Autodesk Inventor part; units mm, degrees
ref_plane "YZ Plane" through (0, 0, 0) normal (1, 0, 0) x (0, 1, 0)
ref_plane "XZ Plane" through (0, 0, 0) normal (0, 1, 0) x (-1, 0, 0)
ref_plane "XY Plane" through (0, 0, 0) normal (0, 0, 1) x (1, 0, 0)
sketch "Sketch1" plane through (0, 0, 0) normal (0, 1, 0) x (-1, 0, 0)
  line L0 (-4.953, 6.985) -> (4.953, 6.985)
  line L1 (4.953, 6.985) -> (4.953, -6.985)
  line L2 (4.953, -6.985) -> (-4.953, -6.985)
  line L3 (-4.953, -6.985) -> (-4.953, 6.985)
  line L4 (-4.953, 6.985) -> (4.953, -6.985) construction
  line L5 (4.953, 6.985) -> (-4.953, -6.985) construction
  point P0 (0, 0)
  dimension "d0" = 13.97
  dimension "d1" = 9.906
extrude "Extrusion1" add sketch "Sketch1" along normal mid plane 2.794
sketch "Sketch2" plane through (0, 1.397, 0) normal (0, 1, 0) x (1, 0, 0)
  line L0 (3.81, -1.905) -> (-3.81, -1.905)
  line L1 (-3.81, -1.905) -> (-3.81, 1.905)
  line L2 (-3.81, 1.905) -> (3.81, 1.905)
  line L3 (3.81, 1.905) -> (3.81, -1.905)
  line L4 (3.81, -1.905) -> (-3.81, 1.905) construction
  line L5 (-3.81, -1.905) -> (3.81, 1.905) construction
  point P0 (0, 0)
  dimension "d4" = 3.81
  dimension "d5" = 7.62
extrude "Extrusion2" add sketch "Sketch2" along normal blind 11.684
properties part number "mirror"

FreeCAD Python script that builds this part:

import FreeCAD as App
import Part
import Sketcher

V = App.Vector
Q = App.Units.Quantity

doc = App.newDocument("Part")
body = doc.addObject("PartDesign::Body", "Body")

# Sketch on XZ plane
sketch1 = doc.addObject("Sketcher::SketchObject", "Sketch")
body.addObject(sketch1)
sketch1.AttachmentSupport = (doc.XZ_Plane, [""])
sketch1.MapMode = "FlatFace"
sketch1.addGeometry(Part.LineSegment(V(-5, 7, 0), V(5, 7, 0)), False)
sketch1.addGeometry(Part.LineSegment(V(5, 7, 0), V(5, -7, 0)), False)
sketch1.addGeometry(Part.LineSegment(V(5, -7, 0), V(-5, -7, 0)), False)
sketch1.addGeometry(Part.LineSegment(V(-5, -7, 0), V(-5, 7, 0)), False)
sketch1.addConstraint(Sketcher.Constraint("Coincident", 0, 2, 1, 1))
sketch1.addConstraint(Sketcher.Constraint("Coincident", 1, 2, 2, 1))
sketch1.addConstraint(Sketcher.Constraint("Coincident", 2, 2, 3, 1))
sketch1.addConstraint(Sketcher.Constraint("Coincident", 3, 2, 0, 1))
sketch1.addConstraint(Sketcher.Constraint("Horizontal", 0))
sketch1.addConstraint(Sketcher.Constraint("Vertical", 1))
sketch1.addConstraint(Sketcher.Constraint("Horizontal", 2))
sketch1.addConstraint(Sketcher.Constraint("Vertical", 3))
sketch1.addConstraint(Sketcher.Constraint("Symmetric", 0, 2, 2, 2, -1, 1))
sketch1.addConstraint(Sketcher.Constraint("DistanceX", 0, 1, 0, 2, Q("0.39 in")))
sketch1.addConstraint(Sketcher.Constraint("DistanceY", 1, 2, 1, 1, Q("0.55 in")))
pad1 = doc.addObject("PartDesign::Pad", "Pad")
body.addObject(pad1)
pad1.Profile = sketch1
pad1.Length = Q("0.11 in")
pad1.Midplane = True

# Sketch on XZ plane
sketch2 = doc.addObject("Sketcher::SketchObject", "Sketch001")
body.addObject(sketch2)
sketch2.AttachmentSupport = (doc.XZ_Plane, [""])
sketch2.MapMode = "FlatFace"
sketch2.AttachmentOffset = App.Placement(V(0, 0, -0.055 * 25.4), App.Rotation())
sketch2.addGeometry(Part.LineSegment(V(-3.8, 1.9, 0), V(3.8, 1.9, 0)), False)
sketch2.addGeometry(Part.LineSegment(V(3.8, 1.9, 0), V(3.8, -1.9, 0)), False)
sketch2.addGeometry(Part.LineSegment(V(3.8, -1.9, 0), V(-3.8, -1.9, 0)), False)
sketch2.addGeometry(Part.LineSegment(V(-3.8, -1.9, 0), V(-3.8, 1.9, 0)), False)
sketch2.addConstraint(Sketcher.Constraint("Coincident", 0, 2, 1, 1))
sketch2.addConstraint(Sketcher.Constraint("Coincident", 1, 2, 2, 1))
sketch2.addConstraint(Sketcher.Constraint("Coincident", 2, 2, 3, 1))
sketch2.addConstraint(Sketcher.Constraint("Coincident", 3, 2, 0, 1))
sketch2.addConstraint(Sketcher.Constraint("Horizontal", 0))
sketch2.addConstraint(Sketcher.Constraint("Vertical", 1))
sketch2.addConstraint(Sketcher.Constraint("Horizontal", 2))
sketch2.addConstraint(Sketcher.Constraint("Vertical", 3))
sketch2.addConstraint(Sketcher.Constraint("Symmetric", 0, 2, 2, 2, -1, 1))
sketch2.addConstraint(Sketcher.Constraint("DistanceX", 0, 1, 0, 2, Q("0.3 in")))
sketch2.addConstraint(Sketcher.Constraint("DistanceY", 1, 2, 1, 1, Q("0.15 in")))
pad2 = doc.addObject("PartDesign::Pad", "Pad001")
body.addObject(pad2)
pad2.Profile = sketch2
pad2.Length = Q("0.46 in")
pad2.Reversed = True

doc.recompute()
